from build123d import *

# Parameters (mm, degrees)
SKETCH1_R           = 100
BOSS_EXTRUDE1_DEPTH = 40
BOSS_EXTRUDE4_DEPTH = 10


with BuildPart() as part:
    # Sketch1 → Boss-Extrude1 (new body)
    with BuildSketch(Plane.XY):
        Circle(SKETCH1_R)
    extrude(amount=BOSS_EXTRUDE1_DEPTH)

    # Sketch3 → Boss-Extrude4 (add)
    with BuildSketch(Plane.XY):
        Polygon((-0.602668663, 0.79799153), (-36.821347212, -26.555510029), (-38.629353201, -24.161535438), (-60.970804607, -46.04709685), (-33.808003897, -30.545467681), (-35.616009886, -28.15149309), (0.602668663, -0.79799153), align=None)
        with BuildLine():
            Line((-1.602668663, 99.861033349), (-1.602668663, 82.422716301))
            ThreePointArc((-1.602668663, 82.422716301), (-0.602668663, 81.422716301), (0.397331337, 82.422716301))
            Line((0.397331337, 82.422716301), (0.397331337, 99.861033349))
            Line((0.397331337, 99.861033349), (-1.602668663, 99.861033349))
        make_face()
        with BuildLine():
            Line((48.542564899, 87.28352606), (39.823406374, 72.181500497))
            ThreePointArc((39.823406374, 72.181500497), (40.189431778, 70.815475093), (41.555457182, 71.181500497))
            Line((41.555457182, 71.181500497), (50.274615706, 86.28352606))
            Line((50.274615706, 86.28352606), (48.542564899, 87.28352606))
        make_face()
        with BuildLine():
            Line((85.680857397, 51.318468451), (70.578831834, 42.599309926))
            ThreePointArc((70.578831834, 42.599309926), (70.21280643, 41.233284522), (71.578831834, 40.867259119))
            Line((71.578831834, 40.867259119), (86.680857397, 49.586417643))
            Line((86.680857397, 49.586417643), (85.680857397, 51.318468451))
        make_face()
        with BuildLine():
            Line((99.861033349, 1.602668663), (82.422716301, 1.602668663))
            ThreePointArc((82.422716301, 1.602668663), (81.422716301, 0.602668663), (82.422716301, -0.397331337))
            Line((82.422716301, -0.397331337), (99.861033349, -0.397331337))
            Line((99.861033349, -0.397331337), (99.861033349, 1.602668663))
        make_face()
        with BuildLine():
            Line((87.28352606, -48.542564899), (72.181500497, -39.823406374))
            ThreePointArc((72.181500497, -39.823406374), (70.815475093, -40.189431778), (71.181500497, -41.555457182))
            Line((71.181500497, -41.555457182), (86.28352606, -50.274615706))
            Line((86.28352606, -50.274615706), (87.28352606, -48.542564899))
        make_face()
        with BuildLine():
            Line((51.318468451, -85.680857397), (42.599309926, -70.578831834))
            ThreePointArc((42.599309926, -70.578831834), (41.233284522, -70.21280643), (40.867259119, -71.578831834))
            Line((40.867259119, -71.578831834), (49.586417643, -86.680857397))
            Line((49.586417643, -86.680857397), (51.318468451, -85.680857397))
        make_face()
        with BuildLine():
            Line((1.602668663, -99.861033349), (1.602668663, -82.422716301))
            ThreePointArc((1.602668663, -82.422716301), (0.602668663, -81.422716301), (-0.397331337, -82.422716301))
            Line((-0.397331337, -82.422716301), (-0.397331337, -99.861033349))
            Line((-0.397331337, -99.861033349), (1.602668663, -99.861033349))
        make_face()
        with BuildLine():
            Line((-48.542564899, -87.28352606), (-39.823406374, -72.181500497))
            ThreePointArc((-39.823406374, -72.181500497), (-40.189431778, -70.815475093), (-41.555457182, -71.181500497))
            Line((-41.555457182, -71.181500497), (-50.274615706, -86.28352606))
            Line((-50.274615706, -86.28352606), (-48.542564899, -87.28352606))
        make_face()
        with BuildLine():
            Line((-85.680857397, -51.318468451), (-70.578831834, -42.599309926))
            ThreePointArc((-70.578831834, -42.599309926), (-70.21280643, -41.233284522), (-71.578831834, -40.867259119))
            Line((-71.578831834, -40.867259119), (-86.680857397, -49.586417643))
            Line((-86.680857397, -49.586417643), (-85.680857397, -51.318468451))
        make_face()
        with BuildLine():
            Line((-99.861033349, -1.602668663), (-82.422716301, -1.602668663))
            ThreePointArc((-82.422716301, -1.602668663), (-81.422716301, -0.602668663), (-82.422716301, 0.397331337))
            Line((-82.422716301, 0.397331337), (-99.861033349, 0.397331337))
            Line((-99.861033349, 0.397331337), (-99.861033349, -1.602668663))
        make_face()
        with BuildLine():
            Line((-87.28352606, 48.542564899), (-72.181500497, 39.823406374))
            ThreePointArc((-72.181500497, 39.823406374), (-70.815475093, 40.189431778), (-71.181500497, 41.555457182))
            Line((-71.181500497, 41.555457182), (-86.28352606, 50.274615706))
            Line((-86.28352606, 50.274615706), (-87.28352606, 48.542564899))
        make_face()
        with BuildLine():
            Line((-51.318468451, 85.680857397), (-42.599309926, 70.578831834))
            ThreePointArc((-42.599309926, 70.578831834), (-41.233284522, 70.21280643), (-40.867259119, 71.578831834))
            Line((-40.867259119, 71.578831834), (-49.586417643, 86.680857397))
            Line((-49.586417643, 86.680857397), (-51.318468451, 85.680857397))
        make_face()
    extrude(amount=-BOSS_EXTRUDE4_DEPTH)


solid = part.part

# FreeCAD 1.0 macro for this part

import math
import FreeCAD as App
import Part
import Sketcher
from FreeCAD import Vector
Q = App.Units.Quantity


def add_polygon(sketch, points):
    """Adds a closed chain of lines whose ends are joined by coincident constraints."""
    first, n = sketch.GeometryCount, len(points)
    for a, b in zip(points, points[1:] + points[:1]):
        sketch.addGeometry(Part.LineSegment(App.Vector(*a, 0), App.Vector(*b, 0)), False)
    for i in range(n):
        sketch.addConstraint(Sketcher.Constraint("Coincident", first + i, 2, first + (i + 1) % n, 1))

doc = App.newDocument("Part")
body = doc.addObject("PartDesign::Body", "Body")

sketch1 = body.newObject("Sketcher::SketchObject", "Sketch")
sketch1.AttachmentSupport = (doc.getObject("XY_Plane"), [""])
sketch1.MapMode = "FlatFace"
sketch1.addGeometry(Part.Circle(Vector(0, 0, 0), Vector(0, 0, 1), 100), False)
sketch1.addConstraint(Sketcher.Constraint("Coincident", 0, 3, -1, 1))
sketch1.addConstraint(Sketcher.Constraint("Diameter", 0, Q("200 mm")))
pad1 = body.newObject("PartDesign::Pad", "Pad")
pad1.Profile = sketch1
pad1.Length = 40

sketch2 = body.newObject("Sketcher::SketchObject", "Sketch001")
sketch2.AttachmentSupport = (doc.getObject("XY_Plane"), [""])
sketch2.MapMode = "FlatFace"
add_polygon(sketch2, [(-0.602669, 0.797992), (-36.821347, -26.55551), (-38.629353, -24.161535), (-60.970805, -46.047097), (-33.808004, -30.545468), (-35.61601, -28.151493), (0.602669, -0.797992)])
sketch2.addGeometry(Part.LineSegment(Vector(-1.602669, 99.861033, 0), Vector(-1.602669, 82.422716, 0)), False)
sketch2.addGeometry(Part.ArcOfCircle(Part.Circle(Vector(-0.602669, 82.422716, 0), Vector(0, 0, 1), 1), math.radians(180), math.radians(360)), False)
sketch2.addGeometry(Part.LineSegment(Vector(0.397331, 82.422716, 0), Vector(0.397331, 99.861033, 0)), False)
sketch2.addGeometry(Part.LineSegment(Vector(0.397331, 99.861033, 0), Vector(-1.602669, 99.861033, 0)), False)
sketch2.addGeometry(Part.LineSegment(Vector(48.542565, 87.283526, 0), Vector(39.823406, 72.1815, 0)), False)
sketch2.addGeometry(Part.ArcOfCircle(Part.Circle(Vector(40.689432, 71.6815, 0), Vector(0, 0, 1), 1), math.radians(150), math.radians(330)), False)
sketch2.addGeometry(Part.LineSegment(Vector(41.555457, 71.1815, 0), Vector(50.274616, 86.283526, 0)), False)
sketch2.addGeometry(Part.LineSegment(Vector(50.274616, 86.283526, 0), Vector(48.542565, 87.283526, 0)), False)
sketch2.addGeometry(Part.LineSegment(Vector(85.680857, 51.318468, 0), Vector(70.578832, 42.59931, 0)), False)
sketch2.addGeometry(Part.ArcOfCircle(Part.Circle(Vector(71.078832, 41.733285, 0), Vector(0, 0, 1), 1), math.radians(120), math.radians(300)), False)
sketch2.addGeometry(Part.LineSegment(Vector(71.578832, 40.867259, 0), Vector(86.680857, 49.586418, 0)), False)
sketch2.addGeometry(Part.LineSegment(Vector(86.680857, 49.586418, 0), Vector(85.680857, 51.318468, 0)), False)
sketch2.addGeometry(Part.LineSegment(Vector(99.861033, 1.602669, 0), Vector(82.422716, 1.602669, 0)), False)
sketch2.addGeometry(Part.ArcOfCircle(Part.Circle(Vector(82.422716, 0.602669, 0), Vector(0, 0, 1), 1), math.radians(90), math.radians(270)), False)
sketch2.addGeometry(Part.LineSegment(Vector(82.422716, -0.397331, 0), Vector(99.861033, -0.397331, 0)), False)
sketch2.addGeometry(Part.LineSegment(Vector(99.861033, -0.397331, 0), Vector(99.861033, 1.602669, 0)), False)
sketch2.addGeometry(Part.LineSegment(Vector(87.283526, -48.542565, 0), Vector(72.1815, -39.823406, 0)), False)
sketch2.addGeometry(Part.ArcOfCircle(Part.Circle(Vector(71.6815, -40.689432, 0), Vector(0, 0, 1), 1), math.radians(60), math.radians(240)), False)
sketch2.addGeometry(Part.LineSegment(Vector(71.1815, -41.555457, 0), Vector(86.283526, -50.274616, 0)), False)
sketch2.addGeometry(Part.LineSegment(Vector(86.283526, -50.274616, 0), Vector(87.283526, -48.542565, 0)), False)
sketch2.addGeometry(Part.LineSegment(Vector(51.318468, -85.680857, 0), Vector(42.59931, -70.578832, 0)), False)
sketch2.addGeometry(Part.ArcOfCircle(Part.Circle(Vector(41.733285, -71.078832, 0), Vector(0, 0, 1), 1), math.radians(30), math.radians(210)), False)
sketch2.addGeometry(Part.LineSegment(Vector(40.867259, -71.578832, 0), Vector(49.586418, -86.680857, 0)), False)
sketch2.addGeometry(Part.LineSegment(Vector(49.586418, -86.680857, 0), Vector(51.318468, -85.680857, 0)), False)
sketch2.addGeometry(Part.LineSegment(Vector(1.602669, -99.861033, 0), Vector(1.602669, -82.422716, 0)), False)
sketch2.addGeometry(Part.ArcOfCircle(Part.Circle(Vector(0.602669, -82.422716, 0), Vector(0, 0, 1), 1), math.radians(0), math.radians(180)), False)
sketch2.addGeometry(Part.LineSegment(Vector(-0.397331, -82.422716, 0), Vector(-0.397331, -99.861033, 0)), False)
sketch2.addGeometry(Part.LineSegment(Vector(-0.397331, -99.861033, 0), Vector(1.602669, -99.861033, 0)), False)
sketch2.addGeometry(Part.LineSegment(Vector(-48.542565, -87.283526, 0), Vector(-39.823406, -72.1815, 0)), False)
sketch2.addGeometry(Part.ArcOfCircle(Part.Circle(Vector(-40.689432, -71.6815, 0), Vector(0, 0, 1), 1), math.radians(-30), math.radians(150)), False)
sketch2.addGeometry(Part.LineSegment(Vector(-41.555457, -71.1815, 0), Vector(-50.274616, -86.283526, 0)), False)
sketch2.addGeometry(Part.LineSegment(Vector(-50.274616, -86.283526, 0), Vector(-48.542565, -87.283526, 0)), False)
sketch2.addGeometry(Part.LineSegment(Vector(-85.680857, -51.318468, 0), Vector(-70.578832, -42.59931, 0)), False)
sketch2.addGeometry(Part.ArcOfCircle(Part.Circle(Vector(-71.078832, -41.733285, 0), Vector(0, 0, 1), 1), math.radians(-60), math.radians(120)), False)
sketch2.addGeometry(Part.LineSegment(Vector(-71.578832, -40.867259, 0), Vector(-86.680857, -49.586418, 0)), False)
sketch2.addGeometry(Part.LineSegment(Vector(-86.680857, -49.586418, 0), Vector(-85.680857, -51.318468, 0)), False)
sketch2.addGeometry(Part.LineSegment(Vector(-99.861033, -1.602669, 0), Vector(-82.422716, -1.602669, 0)), False)
sketch2.addGeometry(Part.ArcOfCircle(Part.Circle(Vector(-82.422716, -0.602669, 0), Vector(0, 0, 1), 1), math.radians(-90), math.radians(90)), False)
sketch2.addGeometry(Part.LineSegment(Vector(-82.422716, 0.397331, 0), Vector(-99.861033, 0.397331, 0)), False)
sketch2.addGeometry(Part.LineSegment(Vector(-99.861033, 0.397331, 0), Vector(-99.861033, -1.602669, 0)), False)
sketch2.addGeometry(Part.LineSegment(Vector(-87.283526, 48.542565, 0), Vector(-72.1815, 39.823406, 0)), False)
sketch2.addGeometry(Part.ArcOfCircle(Part.Circle(Vector(-71.6815, 40.689432, 0), Vector(0, 0, 1), 1), math.radians(-120), math.radians(60)), False)
sketch2.addGeometry(Part.LineSegment(Vector(-71.1815, 41.555457, 0), Vector(-86.283526, 50.274616, 0)), False)
sketch2.addGeometry(Part.LineSegment(Vector(-86.283526, 50.274616, 0), Vector(-87.283526, 48.542565, 0)), False)
sketch2.addGeometry(Part.LineSegment(Vector(-51.318468, 85.680857, 0), Vector(-42.59931, 70.578832, 0)), False)
sketch2.addGeometry(Part.ArcOfCircle(Part.Circle(Vector(-41.733285, 71.078832, 0), Vector(0, 0, 1), 1), math.radians(-150), math.radians(30)), False)
sketch2.addGeometry(Part.LineSegment(Vector(-40.867259, 71.578832, 0), Vector(-49.586418, 86.680857, 0)), False)
sketch2.addGeometry(Part.LineSegment(Vector(-49.586418, 86.680857, 0), Vector(-51.318468, 85.680857, 0)), False)
sketch2.addConstraint(Sketcher.Constraint("Coincident", 7, 2, 8, 1))
sketch2.addConstraint(Sketcher.Constraint("Coincident", 8, 2, 9, 1))
sketch2.addConstraint(Sketcher.Constraint("Coincident", 9, 2, 10, 1))
sketch2.addConstraint(Sketcher.Constraint("Coincident", 10, 2, 7, 1))
sketch2.addConstraint(Sketcher.Constraint("Coincident", 11, 2, 12, 1))
sketch2.addConstraint(Sketcher.Constraint("Coincident", 12, 2, 13, 1))
sketch2.addConstraint(Sketcher.Constraint("Coincident", 13, 2, 14, 1))
sketch2.addConstraint(Sketcher.Constraint("Coincident", 14, 2, 11, 1))
sketch2.addConstraint(Sketcher.Constraint("Coincident", 15, 2, 16, 1))
sketch2.addConstraint(Sketcher.Constraint("Coincident", 16, 2, 17, 1))
sketch2.addConstraint(Sketcher.Constraint("Coincident", 17, 2, 18, 1))
sketch2.addConstraint(Sketcher.Constraint("Coincident", 18, 2, 15, 1))
sketch2.addConstraint(Sketcher.Constraint("Coincident", 19, 2, 20, 1))
sketch2.addConstraint(Sketcher.Constraint("Coincident", 20, 2, 21, 1))
sketch2.addConstraint(Sketcher.Constraint("Coincident", 21, 2, 22, 1))
sketch2.addConstraint(Sketcher.Constraint("Coincident", 22, 2, 19, 1))
sketch2.addConstraint(Sketcher.Constraint("Coincident", 23, 2, 24, 1))
sketch2.addConstraint(Sketcher.Constraint("Coincident", 24, 2, 25, 1))
sketch2.addConstraint(Sketcher.Constraint("Coincident", 25, 2, 26, 1))
sketch2.addConstraint(Sketcher.Constraint("Coincident", 26, 2, 23, 1))
sketch2.addConstraint(Sketcher.Constraint("Coincident", 27, 2, 28, 1))
sketch2.addConstraint(Sketcher.Constraint("Coincident", 28, 2, 29, 1))
sketch2.addConstraint(Sketcher.Constraint("Coincident", 29, 2, 30, 1))
sketch2.addConstraint(Sketcher.Constraint("Coincident", 30, 2, 27, 1))
sketch2.addConstraint(Sketcher.Constraint("Coincident", 31, 2, 32, 1))
sketch2.addConstraint(Sketcher.Constraint("Coincident", 32, 2, 33, 1))
sketch2.addConstraint(Sketcher.Constraint("Coincident", 33, 2, 34, 1))
sketch2.addConstraint(Sketcher.Constraint("Coincident", 34, 2, 31, 1))
sketch2.addConstraint(Sketcher.Constraint("Coincident", 35, 2, 36, 1))
sketch2.addConstraint(Sketcher.Constraint("Coincident", 36, 2, 37, 1))
sketch2.addConstraint(Sketcher.Constraint("Coincident", 37, 2, 38, 1))
sketch2.addConstraint(Sketcher.Constraint("Coincident", 38, 2, 35, 1))
sketch2.addConstraint(Sketcher.Constraint("Coincident", 39, 2, 40, 1))
sketch2.addConstraint(Sketcher.Constraint("Coincident", 40, 2, 41, 1))
sketch2.addConstraint(Sketcher.Constraint("Coincident", 41, 2, 42, 1))
sketch2.addConstraint(Sketcher.Constraint("Coincident", 42, 2, 39, 1))
sketch2.addConstraint(Sketcher.Constraint("Coincident", 43, 2, 44, 1))
sketch2.addConstraint(Sketcher.Constraint("Coincident", 44, 2, 45, 1))
sketch2.addConstraint(Sketcher.Constraint("Coincident", 45, 2, 46, 1))
sketch2.addConstraint(Sketcher.Constraint("Coincident", 46, 2, 43, 1))
sketch2.addConstraint(Sketcher.Constraint("Coincident", 47, 2, 48, 1))
sketch2.addConstraint(Sketcher.Constraint("Coincident", 48, 2, 49, 1))
sketch2.addConstraint(Sketcher.Constraint("Coincident", 49, 2, 50, 1))
sketch2.addConstraint(Sketcher.Constraint("Coincident", 50, 2, 47, 1))
sketch2.addConstraint(Sketcher.Constraint("Coincident", 51, 2, 52, 1))
sketch2.addConstraint(Sketcher.Constraint("Coincident", 52, 2, 53, 1))
sketch2.addConstraint(Sketcher.Constraint("Coincident", 53, 2, 54, 1))
sketch2.addConstraint(Sketcher.Constraint("Coincident", 54, 2, 51, 1))
sketch2.addConstraint(Sketcher.Constraint("Vertical", 7))
sketch2.addConstraint(Sketcher.Constraint("Vertical", 9))
sketch2.addConstraint(Sketcher.Constraint("Horizontal", 10))
sketch2.addConstraint(Sketcher.Constraint("Horizontal", 19))
sketch2.addConstraint(Sketcher.Constraint("Horizontal", 21))
sketch2.addConstraint(Sketcher.Constraint("Vertical", 22))
sketch2.addConstraint(Sketcher.Constraint("Vertical", 31))
sketch2.addConstraint(Sketcher.Constraint("Vertical", 33))
sketch2.addConstraint(Sketcher.Constraint("Horizontal", 34))
sketch2.addConstraint(Sketcher.Constraint("Horizontal", 43))
sketch2.addConstraint(Sketcher.Constraint("Horizontal", 45))
sketch2.addConstraint(Sketcher.Constraint("Vertical", 46))
sketch2.addConstraint(Sketcher.Constraint("Radius", 8, Q("1 mm")))
sketch2.addConstraint(Sketcher.Constraint("Radius", 12, Q("1 mm")))
sketch2.addConstraint(Sketcher.Constraint("Radius", 16, Q("1 mm")))
sketch2.addConstraint(Sketcher.Constraint("Radius", 20, Q("1 mm")))
sketch2.addConstraint(Sketcher.Constraint("Radius", 24, Q("1 mm")))
sketch2.addConstraint(Sketcher.Constraint("Radius", 28, Q("1 mm")))
sketch2.addConstraint(Sketcher.Constraint("Radius", 32, Q("1 mm")))
sketch2.addConstraint(Sketcher.Constraint("Radius", 36, Q("1 mm")))
sketch2.addConstraint(Sketcher.Constraint("Radius", 40, Q("1 mm")))
sketch2.addConstraint(Sketcher.Constraint("Radius", 44, Q("1 mm")))
sketch2.addConstraint(Sketcher.Constraint("Radius", 48, Q("1 mm")))
sketch2.addConstraint(Sketcher.Constraint("Radius", 52, Q("1 mm")))
sketch2.addConstraint(Sketcher.Constraint("Distance", 1, Q("3 mm")))
sketch2.addConstraint(Sketcher.Constraint("Distance", 4, Q("3 mm")))
sketch2.addConstraint(Sketcher.Constraint("Distance", 6, Q("2 mm")))
sketch2.addConstraint(Sketcher.Constraint("Distance", 14, Q("2 mm")))
sketch2.addConstraint(Sketcher.Constraint("Distance", 18, Q("2 mm")))
sketch2.addConstraint(Sketcher.Constraint("Distance", 26, Q("2 mm")))
sketch2.addConstraint(Sketcher.Constraint("Distance", 30, Q("2 mm")))
sketch2.addConstraint(Sketcher.Constraint("Distance", 38, Q("2 mm")))
sketch2.addConstraint(Sketcher.Constraint("Distance", 42, Q("2 mm")))
sketch2.addConstraint(Sketcher.Constraint("Distance", 50, Q("2 mm")))
sketch2.addConstraint(Sketcher.Constraint("Distance", 54, Q("2 mm")))
sketch2.addConstraint(Sketcher.Constraint("DistanceY", -1, 1, 12, 3, Q("71.6815 mm")))
sketch2.addConstraint(Sketcher.Constraint("DistanceX", -1, 1, 24, 3, Q("71.6815 mm")))
sketch2.addConstraint(Sketcher.Constraint("DistanceY", 36, 3, -1, 1, Q("71.6815 mm")))
sketch2.addConstraint(Sketcher.Constraint("DistanceX", 48, 3, -1, 1, Q("71.6815 mm")))
sketch2.addConstraint(Sketcher.Constraint("DistanceY", -1, 1, 11, 2, Q("72.1815 mm")))
sketch2.addConstraint(Sketcher.Constraint("DistanceY", -1, 1, 12, 2, Q("71.1815 mm")))
sketch2.addConstraint(Sketcher.Constraint("DistanceX", -1, 1, 23, 2, Q("72.1815 mm")))
sketch2.addConstraint(Sketcher.Constraint("DistanceX", -1, 1, 24, 2, Q("71.1815 mm")))
sketch2.addConstraint(Sketcher.Constraint("DistanceY", 35, 2, -1, 1, Q("72.1815 mm")))
sketch2.addConstraint(Sketcher.Constraint("DistanceY", 36, 2, -1, 1, Q("71.1815 mm")))
sketch2.addConstraint(Sketcher.Constraint("DistanceX", 47, 2, -1, 1, Q("72.1815 mm")))
sketch2.addConstraint(Sketcher.Constraint("DistanceX", 48, 2, -1, 1, Q("71.1815 mm")))
sketch2.addConstraint(Sketcher.Constraint("DistanceX", 19, 2, 19, 1, Q("17.438317 mm")))
sketch2.addConstraint(Sketcher.Constraint("DistanceX", 21, 1, 21, 2, Q("17.438317 mm")))
sketch2.addConstraint(Sketcher.Constraint("DistanceX", 43, 1, 43, 2, Q("17.438317 mm")))
sketch2.addConstraint(Sketcher.Constraint("DistanceX", 45, 2, 45, 1, Q("17.438317 mm")))
sketch2.addConstraint(Sketcher.Constraint("DistanceY", 7, 2, 7, 1, Q("17.438317 mm")))
sketch2.addConstraint(Sketcher.Constraint("DistanceY", 9, 1, 9, 2, Q("17.438317 mm")))
sketch2.addConstraint(Sketcher.Constraint("DistanceY", 31, 1, 31, 2, Q("17.438317 mm")))
sketch2.addConstraint(Sketcher.Constraint("DistanceY", 33, 2, 33, 1, Q("17.438317 mm")))
sketch2.addConstraint(Sketcher.Constraint("DistanceX", 8, 3, -1, 1, Q("0.602669 mm")))
sketch2.addConstraint(Sketcher.Constraint("DistanceX", -1, 1, 12, 3, Q("40.689432 mm")))
sketch2.addConstraint(Sketcher.Constraint("DistanceX", -1, 1, 16, 3, Q("71.078832 mm")))
sketch2.addConstraint(Sketcher.Constraint("DistanceY", -1, 1, 20, 3, Q("0.602669 mm")))
sketch2.addConstraint(Sketcher.Constraint("DistanceY", 24, 3, -1, 1, Q("40.689432 mm")))
sketch2.addConstraint(Sketcher.Constraint("DistanceY", 28, 3, -1, 1, Q("71.078832 mm")))
sketch2.addConstraint(Sketcher.Constraint("DistanceX", -1, 1, 32, 3, Q("0.602669 mm")))
sketch2.addConstraint(Sketcher.Constraint("DistanceX", 36, 3, -1, 1, Q("40.689432 mm")))
sketch2.addConstraint(Sketcher.Constraint("DistanceX", 40, 3, -1, 1, Q("71.078832 mm")))
sketch2.addConstraint(Sketcher.Constraint("DistanceY", 44, 3, -1, 1, Q("0.602669 mm")))
sketch2.addConstraint(Sketcher.Constraint("DistanceY", -1, 1, 48, 3, Q("40.689432 mm")))
sketch2.addConstraint(Sketcher.Constraint("DistanceY", -1, 1, 52, 3, Q("71.078832 mm")))
sketch2.addConstraint(Sketcher.Constraint("DistanceY", 0, 2, -1, 1, Q("26.55551 mm")))
sketch2.addConstraint(Sketcher.Constraint("DistanceX", 4, 2, -1, 1, Q("35.61601 mm")))
sketch2.addConstraint(Sketcher.Constraint("DistanceX", -1, 1, 5, 2, Q("0.602669 mm")))
sketch2.addConstraint(Sketcher.Constraint("DistanceY", 5, 2, -1, 1, Q("0.797992 mm")))
sketch2.addConstraint(Sketcher.Constraint("DistanceX", 6, 2, -1, 1, Q("0.602669 mm")))
sketch2.addConstraint(Sketcher.Constraint("DistanceX", -1, 1, 15, 2, Q("70.578832 mm")))
sketch2.addConstraint(Sketcher.Constraint("DistanceY", -1, 1, 15, 2, Q("42.59931 mm")))
sketch2.addConstraint(Sketcher.Constraint("DistanceX", -1, 1, 16, 2, Q("71.578832 mm")))
sketch2.addConstraint(Sketcher.Constraint("DistanceY", -1, 1, 18, 2, Q("51.318468 mm")))
sketch2.addConstraint(Sketcher.Constraint("DistanceX", -1, 1, 27, 2, Q("42.59931 mm")))
sketch2.addConstraint(Sketcher.Constraint("DistanceY", 27, 2, -1, 1, Q("70.578832 mm")))
sketch2.addConstraint(Sketcher.Constraint("DistanceX", -1, 1, 28, 2, Q("40.867259 mm")))
sketch2.addConstraint(Sketcher.Constraint("DistanceX", -1, 1, 30, 2, Q("51.318468 mm")))
sketch2.addConstraint(Sketcher.Constraint("DistanceX", 39, 2, -1, 1, Q("70.578832 mm")))
sketch2.addConstraint(Sketcher.Constraint("DistanceY", 39, 2, -1, 1, Q("42.59931 mm")))
sketch2.addConstraint(Sketcher.Constraint("DistanceX", 40, 2, -1, 1, Q("71.578832 mm")))
sketch2.addConstraint(Sketcher.Constraint("DistanceY", 42, 2, -1, 1, Q("51.318468 mm")))
sketch2.addConstraint(Sketcher.Constraint("DistanceX", 51, 2, -1, 1, Q("42.59931 mm")))
sketch2.addConstraint(Sketcher.Constraint("DistanceY", -1, 1, 51, 2, Q("70.578832 mm")))
sketch2.addConstraint(Sketcher.Constraint("DistanceX", 52, 2, -1, 1, Q("40.867259 mm")))
sketch2.addConstraint(Sketcher.Constraint("DistanceX", 54, 2, -1, 1, Q("51.318468 mm")))
sketch2.addConstraint(Sketcher.Constraint("Distance", 0, Q("45.387297 mm")))
sketch2.addConstraint(Sketcher.Constraint("Distance", 2, Q("31.274882 mm")))
sketch2.addConstraint(Sketcher.Constraint("Distance", 3, Q("31.274882 mm")))
sketch2.addConstraint(Sketcher.Constraint("Distance", 5, Q("45.387297 mm")))
sketch2.addConstraint(Sketcher.Constraint("Distance", 11, Q("17.438317 mm")))
sketch2.addConstraint(Sketcher.Constraint("Distance", 13, Q("17.438317 mm")))
sketch2.addConstraint(Sketcher.Constraint("Distance", 15, Q("17.438317 mm")))
sketch2.addConstraint(Sketcher.Constraint("Distance", 17, Q("17.438317 mm")))
sketch2.addConstraint(Sketcher.Constraint("Distance", 23, Q("17.438317 mm")))
sketch2.addConstraint(Sketcher.Constraint("Distance", 25, Q("17.438317 mm")))
sketch2.addConstraint(Sketcher.Constraint("Distance", 27, Q("17.438317 mm")))
sketch2.addConstraint(Sketcher.Constraint("Distance", 29, Q("17.438317 mm")))
sketch2.addConstraint(Sketcher.Constraint("Distance", 35, Q("17.438317 mm")))
sketch2.addConstraint(Sketcher.Constraint("Distance", 37, Q("17.438317 mm")))
sketch2.addConstraint(Sketcher.Constraint("Distance", 39, Q("17.438317 mm")))
sketch2.addConstraint(Sketcher.Constraint("Distance", 41, Q("17.438317 mm")))
sketch2.addConstraint(Sketcher.Constraint("Distance", 47, Q("17.438317 mm")))
sketch2.addConstraint(Sketcher.Constraint("Distance", 49, Q("17.438317 mm")))
sketch2.addConstraint(Sketcher.Constraint("Distance", 51, Q("17.438317 mm")))
sketch2.addConstraint(Sketcher.Constraint("Distance", 53, Q("17.438317 mm")))
sketch2.addConstraint(Sketcher.Constraint("DistanceY", -1, 1, 8, 3, Q("82.422716 mm")))
sketch2.addConstraint(Sketcher.Constraint("DistanceX", -1, 1, 20, 3, Q("82.422716 mm")))
sketch2.addConstraint(Sketcher.Constraint("DistanceY", 32, 3, -1, 1, Q("82.422716 mm")))
sketch2.addConstraint(Sketcher.Constraint("DistanceX", 44, 3, -1, 1, Q("82.422716 mm")))
sketch2.addConstraint(Sketcher.Constraint("DistanceX", 1, 2, -1, 1, Q("38.629353 mm")))
sketch2.addConstraint(Sketcher.Constraint("DistanceX", 2, 2, -1, 1, Q("60.970805 mm")))
sketch2.addConstraint(Sketcher.Constraint("DistanceY", -1, 1, 7, 2, Q("82.422716 mm")))
sketch2.addConstraint(Sketcher.Constraint("DistanceX", -1, 1, 13, 2, Q("50.274616 mm")))
sketch2.addConstraint(Sketcher.Constraint("DistanceX", -1, 1, 19, 2, Q("82.422716 mm")))
sketch2.addConstraint(Sketcher.Constraint("DistanceX", -1, 1, 25, 2, Q("86.283526 mm")))
sketch2.addConstraint(Sketcher.Constraint("DistanceY", 31, 2, -1, 1, Q("82.422716 mm")))
sketch2.addConstraint(Sketcher.Constraint("DistanceX", 37, 2, -1, 1, Q("50.274616 mm")))
sketch2.addConstraint(Sketcher.Constraint("DistanceX", 43, 2, -1, 1, Q("82.422716 mm")))
sketch2.addConstraint(Sketcher.Constraint("DistanceX", 49, 2, -1, 1, Q("86.283526 mm")))
pad2 = body.newObject("PartDesign::Pad", "Pad001")
pad2.Profile = sketch2
pad2.Length = 10
pad2.Reversed = True

doc.recompute()
